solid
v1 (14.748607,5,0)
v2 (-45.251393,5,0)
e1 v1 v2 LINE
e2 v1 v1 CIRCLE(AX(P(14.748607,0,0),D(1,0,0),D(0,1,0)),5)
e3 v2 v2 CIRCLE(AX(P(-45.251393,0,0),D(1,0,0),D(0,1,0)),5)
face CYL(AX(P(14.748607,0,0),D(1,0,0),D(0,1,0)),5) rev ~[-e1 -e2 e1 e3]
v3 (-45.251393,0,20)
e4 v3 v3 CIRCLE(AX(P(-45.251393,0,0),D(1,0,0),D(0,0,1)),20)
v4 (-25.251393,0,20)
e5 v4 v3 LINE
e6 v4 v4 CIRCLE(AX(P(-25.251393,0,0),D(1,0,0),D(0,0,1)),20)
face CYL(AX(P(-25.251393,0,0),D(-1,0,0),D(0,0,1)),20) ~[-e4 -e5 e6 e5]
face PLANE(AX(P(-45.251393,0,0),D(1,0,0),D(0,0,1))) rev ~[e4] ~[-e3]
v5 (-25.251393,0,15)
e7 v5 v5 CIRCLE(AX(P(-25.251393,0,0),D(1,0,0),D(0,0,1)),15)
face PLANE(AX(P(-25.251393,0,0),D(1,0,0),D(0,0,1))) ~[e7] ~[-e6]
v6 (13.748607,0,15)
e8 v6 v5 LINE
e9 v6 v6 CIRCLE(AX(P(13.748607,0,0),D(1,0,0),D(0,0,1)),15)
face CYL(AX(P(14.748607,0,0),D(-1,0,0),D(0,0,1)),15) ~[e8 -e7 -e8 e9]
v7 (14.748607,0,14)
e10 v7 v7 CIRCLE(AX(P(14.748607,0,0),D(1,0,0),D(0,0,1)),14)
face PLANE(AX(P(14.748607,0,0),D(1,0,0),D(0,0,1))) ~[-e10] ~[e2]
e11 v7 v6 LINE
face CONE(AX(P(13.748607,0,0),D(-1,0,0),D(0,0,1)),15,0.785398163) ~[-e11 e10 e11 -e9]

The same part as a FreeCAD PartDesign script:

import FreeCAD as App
import Part
import Sketcher
Q = App.Units.Quantity


def edges_at(feature, points):
    """Names of the edges that pass closest to the given points."""
    edges = feature.Shape.Edges
    near = lambda p: min(range(len(edges)), key=lambda i: edges[i].distToShape(Part.Vertex(*p))[0])
    return sorted({f"Edge{near(p) + 1}" for p in points})

doc = App.newDocument("Part")
body = doc.addObject("PartDesign::Body", "Body")

# Sketch on XZ plane
sketch1 = body.newObject("Sketcher::SketchObject", "Sketch")
sketch1.AttachmentSupport = (doc.getObject("XZ_Plane"), [""])
sketch1.MapMode = "FlatFace"
sketch1.addGeometry([
    Part.LineSegment(App.Vector(-45, 20, 0), App.Vector(-45, 0, 0)),  # 0
    Part.LineSegment(App.Vector(-45, 0, 0), App.Vector(15, 0, 0)),  # 1
    Part.LineSegment(App.Vector(15, 0, 0), App.Vector(15, 15, 0)),  # 2
    Part.LineSegment(App.Vector(15, 15, 0), App.Vector(-25, 15, 0)),  # 3
    Part.LineSegment(App.Vector(-25, 15, 0), App.Vector(-25, 20, 0)),  # 4
    Part.LineSegment(App.Vector(-25, 20, 0), App.Vector(-45, 20, 0)),  # 5
], False)
sketch1.addConstraint([
    Sketcher.Constraint("Coincident", 0, 2, 1, 1),
    Sketcher.Constraint("Coincident", 1, 2, 2, 1),
    Sketcher.Constraint("Coincident", 2, 2, 3, 1),
    Sketcher.Constraint("Coincident", 3, 2, 4, 1),
    Sketcher.Constraint("Coincident", 4, 2, 5, 1),
    Sketcher.Constraint("Coincident", 5, 2, 0, 1),
    Sketcher.Constraint("Vertical", 0),
    Sketcher.Constraint("Horizontal", 1),
    Sketcher.Constraint("Vertical", 2),
    Sketcher.Constraint("Horizontal", 3),
    Sketcher.Constraint("Vertical", 4),
    Sketcher.Constraint("Horizontal", 5),
    Sketcher.Constraint("PointOnObject", 0, 2, -1),
    Sketcher.Constraint("Equal", 5, 0),
    Sketcher.Constraint("DistanceX", 1, 1, 1, 2, Q("60 mm")),
    Sketcher.Constraint("DistanceX", 3, 2, 3, 1, Q("40 mm")),
    Sketcher.Constraint("DistanceY", 2, 1, 2, 2, Q("15 mm")),
    Sketcher.Constraint("DistanceX", 0, 2, -1, 1, Q("45.251393 mm")),
])
revolution = body.newObject("PartDesign::Revolution", "Revolution")
revolution.Profile = sketch1
revolution.ReferenceAxis = (sketch1, ["H_Axis"])
revolution.Angle = 360
doc.recompute()

chamfer = body.newObject("PartDesign::Chamfer", "Chamfer")
chamfer.Base = (revolution, edges_at(revolution, [(14.749, 0, -15)]))
chamfer.Size = 1

# Sketch on YZ plane
sketch2 = body.newObject("Sketcher::SketchObject", "Sketch001")
sketch2.AttachmentSupport = (doc.getObject("YZ_Plane"), [""])
sketch2.MapMode = "FlatFace"
sketch2.AttachmentOffset = App.Placement(App.Vector(0, 0, 14.748607), App.Rotation())
sketch2.addGeometry(Part.Circle(App.Vector(0, 0, 0), App.Vector(0, 0, 1), 5), False)
sketch2.addConstraint([
    Sketcher.Constraint("Coincident", 0, 3, -1, 1),
    Sketcher.Constraint("Diameter", 0, Q("10 mm")),
])
pocket1 = body.newObject("PartDesign::Pocket", "Pocket")
pocket1.Profile = sketch2
pocket1.Type = "ThroughAll"

doc.recompute()
